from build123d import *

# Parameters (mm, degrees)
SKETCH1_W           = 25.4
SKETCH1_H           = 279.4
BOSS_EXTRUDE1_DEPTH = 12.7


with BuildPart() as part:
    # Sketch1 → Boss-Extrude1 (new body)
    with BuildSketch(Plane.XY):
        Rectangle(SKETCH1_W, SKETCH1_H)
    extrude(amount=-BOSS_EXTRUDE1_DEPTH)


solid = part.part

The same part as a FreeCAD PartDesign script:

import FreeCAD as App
import Part
import Sketcher
Q = App.Units.Quantity

doc = App.newDocument("Part")
body = doc.addObject("PartDesign::Body", "Body")

# Sketch on XY plane
sketch1 = body.newObject("Sketcher::SketchObject", "Sketch")
sketch1.AttachmentSupport = (doc.getObject("XY_Plane"), [""])
sketch1.MapMode = "FlatFace"
sketch1.addGeometry(Part.LineSegment(App.Vector(-12.7, 139.7, 0), App.Vector(-12.7, -139.7, 0)), False)
sketch1.addGeometry(Part.LineSegment(App.Vector(-12.7, -139.7, 0), App.Vector(12.7, -139.7, 0)), False)
sketch1.addGeometry(Part.LineSegment(App.Vector(12.7, -139.7, 0), App.Vector(12.7, 139.7, 0)), False)
sketch1.addGeometry(Part.LineSegment(App.Vector(12.7, 139.7, 0), App.Vector(-12.7, 139.7, 0)), False)
sketch1.addConstraint(Sketcher.Constraint("Coincident", 0, 2, 1, 1))
sketch1.addConstraint(Sketcher.Constraint("Coincident", 1, 2, 2, 1))
sketch1.addConstraint(Sketcher.Constraint("Coincident", 2, 2, 3, 1))
sketch1.addConstraint(Sketcher.Constraint("Coincident", 3, 2, 0, 1))
sketch1.addConstraint(Sketcher.Constraint("Vertical", 0))
sketch1.addConstraint(Sketcher.Constraint("Horizontal", 1))
sketch1.addConstraint(Sketcher.Constraint("Vertical", 2))
sketch1.addConstraint(Sketcher.Constraint("Horizontal", 3))
sketch1.addConstraint(Sketcher.Constraint("Symmetric", 0, 2, 2, 2, -1, 1))
sketch1.addConstraint(Sketcher.Constraint("DistanceX", 1, 1, 1, 2, Q("1 in")))
sketch1.addConstraint(Sketcher.Constraint("DistanceY", 0, 2, 0, 1, Q("11 in")))
pad1 = body.newObject("PartDesign::Pad", "Pad")
pad1.Profile = sketch1
pad1.Length = Q("0.5 in")
pad1.Reversed = True

doc.recompute()
